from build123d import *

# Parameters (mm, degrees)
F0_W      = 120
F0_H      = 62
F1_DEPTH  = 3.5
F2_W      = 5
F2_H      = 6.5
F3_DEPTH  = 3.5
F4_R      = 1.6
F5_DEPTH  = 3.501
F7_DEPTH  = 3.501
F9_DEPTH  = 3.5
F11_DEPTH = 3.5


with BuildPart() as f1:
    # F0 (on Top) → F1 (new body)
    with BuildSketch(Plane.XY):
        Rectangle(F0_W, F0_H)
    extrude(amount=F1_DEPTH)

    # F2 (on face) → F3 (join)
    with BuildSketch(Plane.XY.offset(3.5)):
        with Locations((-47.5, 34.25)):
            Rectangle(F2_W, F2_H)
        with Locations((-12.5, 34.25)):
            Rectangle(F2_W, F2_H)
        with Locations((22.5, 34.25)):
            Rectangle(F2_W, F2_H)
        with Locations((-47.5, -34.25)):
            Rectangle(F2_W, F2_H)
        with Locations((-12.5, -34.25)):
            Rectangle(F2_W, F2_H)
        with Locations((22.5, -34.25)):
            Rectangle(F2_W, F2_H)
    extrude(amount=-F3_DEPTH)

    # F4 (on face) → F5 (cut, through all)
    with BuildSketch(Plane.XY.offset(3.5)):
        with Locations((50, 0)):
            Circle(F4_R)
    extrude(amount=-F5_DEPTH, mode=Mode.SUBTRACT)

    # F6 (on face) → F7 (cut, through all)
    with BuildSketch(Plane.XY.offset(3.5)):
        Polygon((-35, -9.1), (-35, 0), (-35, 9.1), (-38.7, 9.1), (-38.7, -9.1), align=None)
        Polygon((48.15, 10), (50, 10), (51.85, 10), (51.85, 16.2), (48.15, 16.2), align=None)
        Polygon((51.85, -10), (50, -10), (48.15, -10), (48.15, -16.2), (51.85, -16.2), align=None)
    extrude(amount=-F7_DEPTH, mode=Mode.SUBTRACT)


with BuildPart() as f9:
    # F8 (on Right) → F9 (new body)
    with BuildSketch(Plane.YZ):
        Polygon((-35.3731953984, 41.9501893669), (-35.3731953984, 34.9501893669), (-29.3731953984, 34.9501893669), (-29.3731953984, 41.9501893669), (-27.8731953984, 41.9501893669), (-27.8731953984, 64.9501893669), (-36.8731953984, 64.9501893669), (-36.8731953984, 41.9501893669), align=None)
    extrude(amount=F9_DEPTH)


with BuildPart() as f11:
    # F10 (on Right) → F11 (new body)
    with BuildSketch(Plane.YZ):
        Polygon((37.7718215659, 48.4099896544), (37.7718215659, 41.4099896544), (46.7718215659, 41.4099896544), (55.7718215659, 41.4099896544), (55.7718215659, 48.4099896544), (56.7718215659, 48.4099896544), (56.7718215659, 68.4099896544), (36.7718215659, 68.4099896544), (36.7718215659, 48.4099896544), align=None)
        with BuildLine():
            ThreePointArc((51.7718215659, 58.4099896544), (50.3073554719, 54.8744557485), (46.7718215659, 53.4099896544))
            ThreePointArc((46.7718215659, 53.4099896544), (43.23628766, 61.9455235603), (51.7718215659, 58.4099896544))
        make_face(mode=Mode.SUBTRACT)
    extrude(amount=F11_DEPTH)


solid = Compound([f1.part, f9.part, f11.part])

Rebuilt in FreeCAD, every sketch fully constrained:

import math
import FreeCAD as App
import Part
import Sketcher
from FreeCAD import Vector
Q = App.Units.Quantity


def add_polygon(sketch, points):
    """Adds a closed chain of lines whose ends are joined by coincident constraints."""
    first, n = sketch.GeometryCount, len(points)
    for a, b in zip(points, points[1:] + points[:1]):
        sketch.addGeometry(Part.LineSegment(App.Vector(*a, 0), App.Vector(*b, 0)), False)
    for i in range(n):
        sketch.addConstraint(Sketcher.Constraint("Coincident", first + i, 2, first + (i + 1) % n, 1))

doc = App.newDocument("Part")
body = doc.addObject("PartDesign::Body", "Body")

# Sketch on XY plane
sketch1 = body.newObject("Sketcher::SketchObject", "Sketch")
sketch1.AttachmentSupport = (doc.getObject("XY_Plane"), [""])
sketch1.MapMode = "FlatFace"
add_polygon(sketch1, [(-60, 31), (-60, -31), (60, -31), (60, 31)])  # lines 0-3
sketch1.addConstraint(Sketcher.Constraint("Vertical", 0))
sketch1.addConstraint(Sketcher.Constraint("Horizontal", 1))
sketch1.addConstraint(Sketcher.Constraint("Vertical", 2))
sketch1.addConstraint(Sketcher.Constraint("Horizontal", 3))
sketch1.addConstraint(Sketcher.Constraint("Symmetric", 0, 2, 2, 2, -1, 1))
sketch1.addConstraint(Sketcher.Constraint("DistanceX", 1, 1, 1, 2, Q("120 mm")))
sketch1.addConstraint(Sketcher.Constraint("DistanceY", 0, 2, 0, 1, Q("62 mm")))
pad1 = body.newObject("PartDesign::Pad", "Pad")
pad1.Profile = sketch1
pad1.Length = 3.5

# Sketch on XY plane
sketch2 = body.newObject("Sketcher::SketchObject", "Sketch001")
sketch2.AttachmentSupport = (doc.getObject("XY_Plane"), [""])
sketch2.MapMode = "FlatFace"
sketch2.AttachmentOffset = App.Placement(Vector(0, 0, 3.5), App.Rotation())
add_polygon(sketch2, [(-50, 38), (-50, 31), (-45, 31), (-45, 38)])  # lines 0-3
add_polygon(sketch2, [(-15, 38), (-15, 31), (-10, 31), (-10, 38)])  # lines 4-7
add_polygon(sketch2, [(20, 38), (20, 31), (25, 31), (25, 38)])  # lines 8-11
add_polygon(sketch2, [(-50, -31), (-50, -38), (-45, -38), (-45, -31)])  # lines 12-15
add_polygon(sketch2, [(-15, -31), (-15, -38), (-10, -38), (-10, -31)])  # lines 16-19
add_polygon(sketch2, [(20, -31), (20, -38), (25, -38), (25, -31)])  # lines 20-23
sketch2.addConstraint(Sketcher.Constraint("Vertical", 0))
sketch2.addConstraint(Sketcher.Constraint("Horizontal", 1))
sketch2.addConstraint(Sketcher.Constraint("Vertical", 2))
sketch2.addConstraint(Sketcher.Constraint("Horizontal", 3))
sketch2.addConstraint(Sketcher.Constraint("Vertical", 4))
sketch2.addConstraint(Sketcher.Constraint("Horizontal", 5))
sketch2.addConstraint(Sketcher.Constraint("Vertical", 6))
sketch2.addConstraint(Sketcher.Constraint("Horizontal", 7))
sketch2.addConstraint(Sketcher.Constraint("Vertical", 8))
sketch2.addConstraint(Sketcher.Constraint("Horizontal", 9))
sketch2.addConstraint(Sketcher.Constraint("Vertical", 10))
sketch2.addConstraint(Sketcher.Constraint("Horizontal", 11))
sketch2.addConstraint(Sketcher.Constraint("Vertical", 12))
sketch2.addConstraint(Sketcher.Constraint("Horizontal", 13))
sketch2.addConstraint(Sketcher.Constraint("Vertical", 14))
sketch2.addConstraint(Sketcher.Constraint("Horizontal", 15))
sketch2.addConstraint(Sketcher.Constraint("Vertical", 16))
sketch2.addConstraint(Sketcher.Constraint("Horizontal", 17))
sketch2.addConstraint(Sketcher.Constraint("Vertical", 18))
sketch2.addConstraint(Sketcher.Constraint("Horizontal", 19))
sketch2.addConstraint(Sketcher.Constraint("Vertical", 20))
sketch2.addConstraint(Sketcher.Constraint("Horizontal", 21))
sketch2.addConstraint(Sketcher.Constraint("Vertical", 22))
sketch2.addConstraint(Sketcher.Constraint("Horizontal", 23))
sketch2.addConstraint(Sketcher.Constraint("Symmetric", 3, 2, 12, 2, -1))
sketch2.addConstraint(Sketcher.Constraint("Symmetric", 1, 2, 14, 2, -1))
sketch2.addConstraint(Sketcher.Constraint("Symmetric", 7, 2, 16, 2, -1))
sketch2.addConstraint(Sketcher.Constraint("Symmetric", 5, 2, 18, 2, -1))
sketch2.addConstraint(Sketcher.Constraint("Symmetric", 11, 2, 20, 2, -1))
sketch2.addConstraint(Sketcher.Constraint("Symmetric", 9, 2, 22, 2, -1))
sketch2.addConstraint(Sketcher.Constraint("Horizontal", 1, 2, 4, 2))
sketch2.addConstraint(Sketcher.Constraint("Horizontal", 3, 2, 6, 2))
sketch2.addConstraint(Sketcher.Constraint("Horizontal", 5, 2, 8, 2))
sketch2.addConstraint(Sketcher.Constraint("Horizontal", 7, 2, 10, 2))
sketch2.addConstraint(Sketcher.Constraint("Equal", 3, 5))
sketch2.addConstraint(Sketcher.Constraint("Equal", 7, 9))
sketch2.addConstraint(Sketcher.Constraint("DistanceX", 1, 1, 1, 2, Q("5 mm")))
sketch2.addConstraint(Sketcher.Constraint("DistanceY", 0, 2, 0, 1, Q("6.5 mm")))
sketch2.addConstraint(Sketcher.Constraint("DistanceX", 0, 2, -1, 1, Q("50 mm")))
sketch2.addConstraint(Sketcher.Constraint("DistanceY", -1, 1, 0, 2, Q("31 mm")))
sketch2.addConstraint(Sketcher.Constraint("DistanceX", 4, 2, -1, 1, Q("15 mm")))
sketch2.addConstraint(Sketcher.Constraint("DistanceX", -1, 1, 8, 2, Q("20 mm")))
pad2 = body.newObject("PartDesign::Pad", "Pad001")
pad2.Profile = sketch2
pad2.Length = 3.5
pad2.Reversed = True

# Sketch on XY plane
sketch3 = body.newObject("Sketcher::SketchObject", "Sketch002")
sketch3.AttachmentSupport = (doc.getObject("XY_Plane"), [""])
sketch3.MapMode = "FlatFace"
sketch3.AttachmentOffset = App.Placement(Vector(0, 0, 3.5), App.Rotation())
sketch3.addGeometry(Part.Circle(Vector(50, 0, 0), Vector(0, 0, 1), 1.6), False)
sketch3.addConstraint(Sketcher.Constraint("PointOnObject", 0, 3, -1))
sketch3.addConstraint(Sketcher.Constraint("Diameter", 0, Q("3.2 mm")))
sketch3.addConstraint(Sketcher.Constraint("DistanceX", -1, 1, 0, 3, Q("50 mm")))
pocket1 = body.newObject("PartDesign::Pocket", "Pocket")
pocket1.Profile = sketch3
pocket1.Type = "ThroughAll"

# Sketch on XY plane
sketch4 = body.newObject("Sketcher::SketchObject", "Sketch003")
sketch4.AttachmentSupport = (doc.getObject("XY_Plane"), [""])
sketch4.MapMode = "FlatFace"
sketch4.AttachmentOffset = App.Placement(Vector(0, 0, 3.5), App.Rotation())
add_polygon(sketch4, [(-35, -9.1), (-35, 9.1), (-38.7, 9.1), (-38.7, -9.1)])  # lines 0-3
add_polygon(sketch4, [(48.1, 10), (51.9, 10), (51.9, 16.2), (48.1, 16.2)])  # lines 4-7
add_polygon(sketch4, [(51.9, -10), (48.1, -10), (48.1, -16.2), (51.9, -16.2)])  # lines 8-11
sketch4.addConstraint(Sketcher.Constraint("Vertical", 0))
sketch4.addConstraint(Sketcher.Constraint("Horizontal", 1))
sketch4.addConstraint(Sketcher.Constraint("Vertical", 2))
sketch4.addConstraint(Sketcher.Constraint("Horizontal", 3))
sketch4.addConstraint(Sketcher.Constraint("Horizontal", 4))
sketch4.addConstraint(Sketcher.Constraint("Vertical", 5))
sketch4.addConstraint(Sketcher.Constraint("Horizontal", 6))
sketch4.addConstraint(Sketcher.Constraint("Vertical", 7))
sketch4.addConstraint(Sketcher.Constraint("Horizontal", 8))
sketch4.addConstraint(Sketcher.Constraint("Vertical", 9))
sketch4.addConstraint(Sketcher.Constraint("Horizontal", 10))
sketch4.addConstraint(Sketcher.Constraint("Vertical", 11))
sketch4.addConstraint(Sketcher.Constraint("Symmetric", 7, 2, 8, 2, -1))
sketch4.addConstraint(Sketcher.Constraint("Symmetric", 5, 2, 10, 2, -1))
sketch4.addConstraint(Sketcher.Constraint("Equal", 3, 4))
sketch4.addConstraint(Sketcher.Constraint("DistanceX", 1, 2, 1, 1, Q("3.7 mm")))
sketch4.addConstraint(Sketcher.Constraint("DistanceY", 0, 1, 0, 2, Q("18.2 mm")))
sketch4.addConstraint(Sketcher.Constraint("DistanceY", 5, 1, 5, 2, Q("6.2 mm")))
sketch4.addConstraint(Sketcher.Constraint("DistanceX", 0, 2, -1, 1, Q("35 mm")))
sketch4.addConstraint(Sketcher.Constraint("DistanceY", -1, 1, 4, 2, Q("10 mm")))
sketch4.addConstraint(Sketcher.Constraint("DistanceY", -1, 1, 0, 2, Q("9.1 mm")))
sketch4.addConstraint(Sketcher.Constraint("DistanceX", -1, 1, 4, 2, Q("51.85 mm")))
pocket2 = body.newObject("PartDesign::Pocket", "Pocket001")
pocket2.Profile = sketch4
pocket2.Type = "ThroughAll"
body2 = doc.addObject("PartDesign::Body", "Body001")

# Sketch on YZ plane
sketch5 = body2.newObject("Sketcher::SketchObject", "Sketch004")
sketch5.AttachmentSupport = (doc.getObject("YZ_Plane001"), [""])
sketch5.MapMode = "FlatFace"
add_polygon(sketch5, [(-35.4, 42), (-35.4, 35), (-29.4, 35), (-29.4, 42), (-27.9, 42), (-27.9, 65), (-36.9, 65), (-36.9, 42)])  # lines 0-7
sketch5.addConstraint(Sketcher.Constraint("Vertical", 0))
sketch5.addConstraint(Sketcher.Constraint("Horizontal", 1))
sketch5.addConstraint(Sketcher.Constraint("Vertical", 2))
sketch5.addConstraint(Sketcher.Constraint("Horizontal", 3))
sketch5.addConstraint(Sketcher.Constraint("Vertical", 4))
sketch5.addConstraint(Sketcher.Constraint("Horizontal", 5))
sketch5.addConstraint(Sketcher.Constraint("Vertical", 6))
sketch5.addConstraint(Sketcher.Constraint("Horizontal", 7))
sketch5.addConstraint(Sketcher.Constraint("Horizontal", 3, 2, 6, 2))
sketch5.addConstraint(Sketcher.Constraint("Equal", 3, 7))
sketch5.addConstraint(Sketcher.Constraint("DistanceX", 1, 1, 1, 2, Q("6 mm")))
sketch5.addConstraint(Sketcher.Constraint("DistanceX", 5, 2, 5, 1, Q("9 mm")))
sketch5.addConstraint(Sketcher.Constraint("DistanceY", 0, 2, 0, 1, Q("7 mm")))
sketch5.addConstraint(Sketcher.Constraint("DistanceY", 4, 1, 4, 2, Q("23 mm")))
sketch5.addConstraint(Sketcher.Constraint("DistanceY", -1, 1, 0, 2, Q("34.950189 mm")))
sketch5.addConstraint(Sketcher.Constraint("DistanceX", 0, 2, -1, 1, Q("35.373195 mm")))
pad3 = body2.newObject("PartDesign::Pad", "Pad002")
pad3.Profile = sketch5
pad3.Length = 3.5
body3 = doc.addObject("PartDesign::Body", "Body002")

# Sketch on YZ plane
sketch6 = body3.newObject("Sketcher::SketchObject", "Sketch005")
sketch6.AttachmentSupport = (doc.getObject("YZ_Plane002"), [""])
sketch6.MapMode = "FlatFace"
add_polygon(sketch6, [(37.8, 48.4), (37.8, 41.4), (55.8, 41.4), (55.8, 48.4), (56.8, 48.4), (56.8, 68.4), (36.8, 68.4), (36.8, 48.4)])  # lines 0-7
sketch6.addGeometry(Part.ArcOfCircle(Part.Circle(Vector(46.8, 58.4, 0), Vector(0, 0, 1), 5), math.radians(0), math.radians(270)), False)  # 8
sketch6.addGeometry(Part.ArcOfCircle(Part.Circle(Vector(46.8, 58.4, 0), Vector(0, 0, 1), 5), math.radians(-90), math.radians(0)), False)  # 9
sketch6.addConstraint(Sketcher.Constraint("Tangent", 8, 1, 9, 2))
sketch6.addConstraint(Sketcher.Constraint("Coincident", 9, 1, 8, 2))
sketch6.addConstraint(Sketcher.Constraint("Vertical", 0))
sketch6.addConstraint(Sketcher.Constraint("Horizontal", 1))
sketch6.addConstraint(Sketcher.Constraint("Vertical", 2))
sketch6.addConstraint(Sketcher.Constraint("Horizontal", 3))
sketch6.addConstraint(Sketcher.Constraint("Vertical", 4))
sketch6.addConstraint(Sketcher.Constraint("Horizontal", 5))
sketch6.addConstraint(Sketcher.Constraint("Vertical", 6))
sketch6.addConstraint(Sketcher.Constraint("Horizontal", 7))
sketch6.addConstraint(Sketcher.Constraint("Horizontal", 3, 2, 6, 2))
sketch6.addConstraint(Sketcher.Constraint("Horizontal", 9, 3, 8, 1))
sketch6.addConstraint(Sketcher.Constraint("Vertical", 8, 3, 9, 1))
sketch6.addConstraint(Sketcher.Constraint("Equal", 3, 7))
sketch6.addConstraint(Sketcher.Constraint("Equal", 5, 4))
sketch6.addConstraint(Sketcher.Constraint("Radius", 8, Q("5 mm")))
sketch6.addConstraint(Sketcher.Constraint("DistanceX", 1, 1, 1, 2, Q("18 mm")))
sketch6.addConstraint(Sketcher.Constraint("DistanceX", 3, 1, 3, 2, Q("1 mm")))
sketch6.addConstraint(Sketcher.Constraint("DistanceY", 0, 2, 0, 1, Q("7 mm")))
sketch6.addConstraint(Sketcher.Constraint("DistanceX", 0, 2, 8, 3, Q("9 mm")))
sketch6.addConstraint(Sketcher.Constraint("DistanceY", 0, 2, 8, 3, Q("17 mm")))
sketch6.addConstraint(Sketcher.Constraint("DistanceX", -1, 1, 8, 3, Q("46.771822 mm")))
sketch6.addConstraint(Sketcher.Constraint("DistanceY", -1, 1, 8, 3, Q("58.40999 mm")))
pad4 = body3.newObject("PartDesign::Pad", "Pad003")
pad4.Profile = sketch6
pad4.Length = 3.5

doc.recompute()
